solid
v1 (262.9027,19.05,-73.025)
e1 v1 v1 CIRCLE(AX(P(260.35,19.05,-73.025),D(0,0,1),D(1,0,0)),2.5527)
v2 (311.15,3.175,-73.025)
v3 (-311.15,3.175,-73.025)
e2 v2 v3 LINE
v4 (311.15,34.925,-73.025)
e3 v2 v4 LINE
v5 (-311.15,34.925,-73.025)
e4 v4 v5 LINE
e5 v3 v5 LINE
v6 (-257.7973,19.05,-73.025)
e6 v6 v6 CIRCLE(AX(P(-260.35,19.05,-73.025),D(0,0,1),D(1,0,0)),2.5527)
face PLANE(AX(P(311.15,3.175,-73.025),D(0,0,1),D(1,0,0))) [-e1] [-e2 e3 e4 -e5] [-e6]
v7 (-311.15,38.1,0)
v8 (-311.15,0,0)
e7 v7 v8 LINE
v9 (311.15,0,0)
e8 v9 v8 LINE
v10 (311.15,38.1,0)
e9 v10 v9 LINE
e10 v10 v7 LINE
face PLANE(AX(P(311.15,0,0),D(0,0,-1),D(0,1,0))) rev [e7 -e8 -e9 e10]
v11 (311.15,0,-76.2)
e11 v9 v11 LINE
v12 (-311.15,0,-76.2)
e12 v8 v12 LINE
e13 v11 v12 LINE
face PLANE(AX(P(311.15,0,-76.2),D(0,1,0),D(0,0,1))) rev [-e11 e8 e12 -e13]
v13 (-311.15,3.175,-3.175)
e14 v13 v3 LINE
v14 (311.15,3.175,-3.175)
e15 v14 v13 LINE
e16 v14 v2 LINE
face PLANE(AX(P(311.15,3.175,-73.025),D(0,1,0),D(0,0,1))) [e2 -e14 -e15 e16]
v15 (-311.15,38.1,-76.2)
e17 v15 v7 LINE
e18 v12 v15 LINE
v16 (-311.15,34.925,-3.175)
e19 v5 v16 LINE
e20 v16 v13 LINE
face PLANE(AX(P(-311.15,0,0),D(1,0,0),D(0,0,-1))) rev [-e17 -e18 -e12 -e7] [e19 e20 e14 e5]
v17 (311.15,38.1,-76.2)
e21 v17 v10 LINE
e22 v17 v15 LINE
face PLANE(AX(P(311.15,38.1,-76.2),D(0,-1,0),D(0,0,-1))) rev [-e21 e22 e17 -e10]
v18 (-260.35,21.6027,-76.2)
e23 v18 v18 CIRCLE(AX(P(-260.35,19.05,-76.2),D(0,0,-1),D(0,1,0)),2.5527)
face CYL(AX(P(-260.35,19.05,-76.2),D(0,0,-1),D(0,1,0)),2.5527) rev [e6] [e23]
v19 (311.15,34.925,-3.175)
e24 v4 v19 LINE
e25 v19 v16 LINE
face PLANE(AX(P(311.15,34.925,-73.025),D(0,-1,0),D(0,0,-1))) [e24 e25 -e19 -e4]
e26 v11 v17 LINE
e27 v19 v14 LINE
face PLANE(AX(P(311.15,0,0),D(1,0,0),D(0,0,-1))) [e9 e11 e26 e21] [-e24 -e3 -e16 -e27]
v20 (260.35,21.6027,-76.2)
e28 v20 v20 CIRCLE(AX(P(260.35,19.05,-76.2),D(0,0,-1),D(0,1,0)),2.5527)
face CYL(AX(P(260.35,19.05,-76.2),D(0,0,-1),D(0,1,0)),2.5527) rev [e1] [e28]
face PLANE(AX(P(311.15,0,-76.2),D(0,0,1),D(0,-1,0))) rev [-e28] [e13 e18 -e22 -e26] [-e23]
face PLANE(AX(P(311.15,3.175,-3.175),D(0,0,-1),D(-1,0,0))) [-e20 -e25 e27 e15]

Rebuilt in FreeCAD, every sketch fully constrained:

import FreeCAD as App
import Part
import Sketcher
from FreeCAD import Vector
Q = App.Units.Quantity


def add_polygon(sketch, points):
    """Adds a closed chain of lines whose ends are joined by coincident constraints."""
    first, n = sketch.GeometryCount, len(points)
    for a, b in zip(points, points[1:] + points[:1]):
        sketch.addGeometry(Part.LineSegment(App.Vector(*a, 0), App.Vector(*b, 0)), False)
    for i in range(n):
        sketch.addConstraint(Sketcher.Constraint("Coincident", first + i, 2, first + (i + 1) % n, 1))

doc = App.newDocument("Part")
params = doc.addObject("Spreadsheet::Sheet", "Params")
for row, (alias, value) in enumerate([
    ("sketch1_height", "3 in"),
    ("sketch1_width", "1.5 in"),
    ("sketch1_width2", "1.25 in"),
    ("sketch1_height2", "2.75 in"),
    ("pad1_length", "24.5 in"),
    ("sketch2_diameter", "0.201 in"),
    ("hole_diameter", "0.201 in"),
    ("hole_depth", "0.125 in"),
], start=1):
    params.set(f"A{row}", alias)
    params.set(f"B{row}", "=" + value)
    params.setAlias(f"B{row}", alias)

body = doc.addObject("PartDesign::Body", "Body")

# Sketch on YZ plane
sketch1 = body.newObject("Sketcher::SketchObject", "Sketch")
sketch1.AttachmentSupport = (doc.getObject("YZ_Plane"), [""])
sketch1.MapMode = "FlatFace"
add_polygon(sketch1, [(38.1, 0), (0, 0), (0, -76.2), (38.1, -76.2)])  # lines 0-3
add_polygon(sketch1, [(3.175, -73.025), (3.175, -3.175), (34.925, -3.175), (34.925, -73.025)])  # lines 4-7
sketch1.addConstraint([
    Sketcher.Constraint("Horizontal", 0),
    Sketcher.Constraint("Vertical", 1),
    Sketcher.Constraint("Horizontal", 2),
    Sketcher.Constraint("Vertical", 3),
    Sketcher.Constraint("Vertical", 4),
    Sketcher.Constraint("Horizontal", 5),
    Sketcher.Constraint("Vertical", 6),
    Sketcher.Constraint("Horizontal", 7),
    Sketcher.Constraint("Coincident", 0, 2, -1, 1),
    Sketcher.Constraint("DistanceY", 1, 2, 1, 1, Q("3 in")),
    Sketcher.Constraint("DistanceX", 0, 2, 0, 1, Q("1.5 in")),
    Sketcher.Constraint("DistanceX", 5, 1, 5, 2, Q("1.25 in")),
    Sketcher.Constraint("DistanceY", 4, 1, 4, 2, Q("2.75 in")),
    Sketcher.Constraint("DistanceX", -1, 1, 4, 2, Q("0.125 in")),
    Sketcher.Constraint("DistanceY", 4, 2, -1, 1, Q("0.125 in")),
])
sketch1.setExpression("Constraints[17]", "Params.sketch1_height")
sketch1.setExpression("Constraints[18]", "Params.sketch1_width")
sketch1.setExpression("Constraints[19]", "Params.sketch1_width2")
sketch1.setExpression("Constraints[20]", "Params.sketch1_height2")
pad1 = body.newObject("PartDesign::Pad", "Pad")
pad1.Profile = sketch1
pad1.setExpression("Length", "Params.pad1_length")
pad1.Midplane = True

# Sketch on XY plane
sketch2 = body.newObject("Sketcher::SketchObject", "Sketch001")
sketch2.AttachmentSupport = (doc.getObject("XY_Plane"), [""])
sketch2.MapMode = "FlatFace"
sketch2.AttachmentOffset = App.Placement(Vector(0, 0, -3 * 25.4), App.Rotation())
sketch2.addGeometry([
    Part.Circle(Vector(-260.35, 19.05, 0), Vector(0, 0, 1), 2.5527),
    Part.Circle(Vector(260.35, 19.05, 0), Vector(0, 0, 1), 2.5527),
], False)
sketch2.addConstraint([
    Sketcher.Constraint("Equal", 0, 1),
    Sketcher.Constraint("Symmetric", 0, 3, 1, 3, -2),
    Sketcher.Constraint("Diameter", 0, Q("0.201 in")),
    Sketcher.Constraint("DistanceX", 0, 3, 1, 3, Q("20.5 in")),
    Sketcher.Constraint("DistanceY", -1, 1, 0, 3, Q("0.75 in")),
])
sketch2.setExpression("Constraints[2]", "Params.sketch2_diameter")
doc.recompute()
hole = body.newObject("PartDesign::Hole", "Hole")
hole.Profile = sketch2
hole.ThreadType = "None"
hole.setExpression("Diameter", "Params.hole_diameter")
hole.DepthType = "Dimension"
hole.setExpression("Depth", "Params.hole_depth")
hole.DrillPoint = "Flat"
hole.Reversed = True

doc.recompute()
